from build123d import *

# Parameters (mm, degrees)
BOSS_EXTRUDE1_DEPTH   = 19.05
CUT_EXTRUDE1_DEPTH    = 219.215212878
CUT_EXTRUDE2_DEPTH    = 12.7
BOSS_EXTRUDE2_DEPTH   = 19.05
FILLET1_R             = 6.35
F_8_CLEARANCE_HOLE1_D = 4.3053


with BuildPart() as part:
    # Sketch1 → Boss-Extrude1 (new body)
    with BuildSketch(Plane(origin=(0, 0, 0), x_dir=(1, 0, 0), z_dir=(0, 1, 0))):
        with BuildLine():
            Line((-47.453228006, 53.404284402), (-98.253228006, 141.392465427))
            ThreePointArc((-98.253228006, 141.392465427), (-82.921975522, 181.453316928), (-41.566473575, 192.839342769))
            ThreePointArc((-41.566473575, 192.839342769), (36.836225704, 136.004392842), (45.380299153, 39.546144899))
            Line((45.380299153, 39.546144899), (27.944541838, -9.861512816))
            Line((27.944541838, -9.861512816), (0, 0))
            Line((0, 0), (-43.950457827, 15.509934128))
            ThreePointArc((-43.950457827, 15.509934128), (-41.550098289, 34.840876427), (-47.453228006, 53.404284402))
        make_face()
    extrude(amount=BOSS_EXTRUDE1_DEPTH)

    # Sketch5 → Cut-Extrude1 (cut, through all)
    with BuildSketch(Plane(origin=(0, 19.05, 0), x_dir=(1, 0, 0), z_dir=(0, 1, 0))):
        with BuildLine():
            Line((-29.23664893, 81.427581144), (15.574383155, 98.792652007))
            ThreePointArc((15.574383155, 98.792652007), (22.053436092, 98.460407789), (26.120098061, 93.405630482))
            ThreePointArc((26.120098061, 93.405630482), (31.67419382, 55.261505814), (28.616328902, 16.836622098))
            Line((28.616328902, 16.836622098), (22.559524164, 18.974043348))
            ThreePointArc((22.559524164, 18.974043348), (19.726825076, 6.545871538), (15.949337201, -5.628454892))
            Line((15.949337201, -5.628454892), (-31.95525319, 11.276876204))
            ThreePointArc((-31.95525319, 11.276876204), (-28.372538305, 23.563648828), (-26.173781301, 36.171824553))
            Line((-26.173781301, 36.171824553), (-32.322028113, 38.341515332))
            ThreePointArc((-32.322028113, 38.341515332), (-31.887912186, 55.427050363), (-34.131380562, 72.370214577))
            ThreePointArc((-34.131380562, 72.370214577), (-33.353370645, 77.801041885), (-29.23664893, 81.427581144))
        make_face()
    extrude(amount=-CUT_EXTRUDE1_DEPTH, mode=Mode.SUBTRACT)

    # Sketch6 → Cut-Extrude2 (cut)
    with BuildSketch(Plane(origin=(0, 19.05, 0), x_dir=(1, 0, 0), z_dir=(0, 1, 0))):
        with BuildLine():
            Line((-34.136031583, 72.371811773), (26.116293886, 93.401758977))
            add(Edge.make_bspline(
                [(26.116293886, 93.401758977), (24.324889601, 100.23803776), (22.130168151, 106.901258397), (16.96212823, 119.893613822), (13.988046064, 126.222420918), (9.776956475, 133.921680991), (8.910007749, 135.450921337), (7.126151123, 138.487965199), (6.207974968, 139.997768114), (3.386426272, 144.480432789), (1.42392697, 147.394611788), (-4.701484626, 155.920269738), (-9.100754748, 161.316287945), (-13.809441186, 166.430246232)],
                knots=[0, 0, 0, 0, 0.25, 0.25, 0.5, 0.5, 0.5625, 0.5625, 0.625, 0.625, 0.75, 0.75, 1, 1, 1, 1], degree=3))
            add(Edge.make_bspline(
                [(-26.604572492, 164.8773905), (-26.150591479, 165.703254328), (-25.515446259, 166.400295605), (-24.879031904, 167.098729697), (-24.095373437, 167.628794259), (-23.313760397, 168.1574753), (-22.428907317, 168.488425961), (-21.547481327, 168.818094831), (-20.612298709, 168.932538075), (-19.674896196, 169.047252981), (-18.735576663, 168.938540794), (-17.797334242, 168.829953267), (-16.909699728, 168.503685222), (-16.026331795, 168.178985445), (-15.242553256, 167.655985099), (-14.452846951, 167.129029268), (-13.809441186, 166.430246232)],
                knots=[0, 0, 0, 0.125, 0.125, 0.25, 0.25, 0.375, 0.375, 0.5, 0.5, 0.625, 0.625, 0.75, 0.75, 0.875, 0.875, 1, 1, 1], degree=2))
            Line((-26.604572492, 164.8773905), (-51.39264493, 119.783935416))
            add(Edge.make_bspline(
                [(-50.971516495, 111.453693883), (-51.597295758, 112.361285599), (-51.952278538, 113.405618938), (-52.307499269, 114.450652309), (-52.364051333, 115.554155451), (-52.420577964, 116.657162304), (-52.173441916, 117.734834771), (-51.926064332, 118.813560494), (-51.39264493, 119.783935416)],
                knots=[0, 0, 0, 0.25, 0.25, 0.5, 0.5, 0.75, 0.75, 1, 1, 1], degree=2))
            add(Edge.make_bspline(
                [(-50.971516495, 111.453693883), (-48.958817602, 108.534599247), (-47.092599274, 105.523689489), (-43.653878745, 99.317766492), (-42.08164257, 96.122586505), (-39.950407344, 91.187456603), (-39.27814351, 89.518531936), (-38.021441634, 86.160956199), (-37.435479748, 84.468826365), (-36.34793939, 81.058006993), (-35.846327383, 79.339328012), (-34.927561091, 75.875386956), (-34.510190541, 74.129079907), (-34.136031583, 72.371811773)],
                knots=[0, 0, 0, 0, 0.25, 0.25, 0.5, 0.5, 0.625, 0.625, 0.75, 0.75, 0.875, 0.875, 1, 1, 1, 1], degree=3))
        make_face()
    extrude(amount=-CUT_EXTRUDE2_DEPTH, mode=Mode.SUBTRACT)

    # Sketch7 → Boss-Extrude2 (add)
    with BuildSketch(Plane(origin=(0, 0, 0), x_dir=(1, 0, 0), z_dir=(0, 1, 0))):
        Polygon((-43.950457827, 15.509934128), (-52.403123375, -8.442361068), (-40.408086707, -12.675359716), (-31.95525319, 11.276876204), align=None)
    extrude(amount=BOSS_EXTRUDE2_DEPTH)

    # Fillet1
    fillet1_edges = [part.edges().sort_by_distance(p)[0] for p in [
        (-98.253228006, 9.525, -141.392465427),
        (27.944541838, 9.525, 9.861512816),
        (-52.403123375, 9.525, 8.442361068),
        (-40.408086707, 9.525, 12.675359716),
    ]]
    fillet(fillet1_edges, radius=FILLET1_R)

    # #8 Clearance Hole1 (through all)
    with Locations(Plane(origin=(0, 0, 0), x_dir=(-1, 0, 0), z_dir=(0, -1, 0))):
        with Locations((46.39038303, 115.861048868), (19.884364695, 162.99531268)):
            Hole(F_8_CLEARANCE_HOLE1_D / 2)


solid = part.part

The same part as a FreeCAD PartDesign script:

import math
import FreeCAD as App
import Part
import Sketcher
from FreeCAD import Vector
Q = App.Units.Quantity


def edges_at(feature, points):
    """Names of the edges that pass closest to the given points."""
    edges = feature.Shape.Edges
    near = lambda p: min(range(len(edges)), key=lambda i: edges[i].distToShape(Part.Vertex(*p))[0])
    return sorted({f"Edge{near(p) + 1}" for p in points})

doc = App.newDocument("Part")
body = doc.addObject("PartDesign::Body", "Body")

sketch1 = body.newObject("Sketcher::SketchObject", "Sketch")
sketch1.AttachmentSupport = (doc.getObject("XZ_Plane"), [""])
sketch1.MapMode = "FlatFace"
sketch1.addGeometry([
    Part.LineSegment(Vector(-98, -141, 0), Vector(-47, -53, 0)),
    Part.ArcOfCircle(Part.Circle(Vector(-87, -31, 0), Vector(0, 0, 1), 46), math.radians(-30), math.radians(19)),
    Part.LineSegment(Vector(-44, -16, 0), Vector(0, 0, 0)),
    Part.LineSegment(Vector(0, 0, 0), Vector(28, 10, 0)),
    Part.LineSegment(Vector(28, 10, 0), Vector(45, -40, 0)),
    Part.ArcOfCircle(Part.Circle(Vector(-65, -78, 0), Vector(0, 0, 1), 117), math.radians(-79), math.radians(19)),
    Part.ArcOfCircle(Part.Circle(Vector(-51, -146, 0), Vector(0, 0, 1), 48), math.radians(174), math.radians(281)),
], False)
sketch1.addConstraint([
    Sketcher.Constraint("Tangent", 0, 2, 1, 1),
    Sketcher.Constraint("Coincident", 1, 2, 2, 1),
    Sketcher.Constraint("Coincident", 2, 2, 3, 1),
    Sketcher.Constraint("Coincident", 3, 2, 4, 1),
    Sketcher.Constraint("Tangent", 4, 2, 5, 2),
    Sketcher.Constraint("Tangent", 5, 1, 6, 2),
    Sketcher.Constraint("Coincident", 6, 1, 0, 1),
    Sketcher.Constraint("Coincident", 2, 2, -1, 1),
    Sketcher.Constraint("Parallel", 2, 3),
    Sketcher.Constraint("Perpendicular", 3, 4),
    Sketcher.Constraint("Distance", 0, Q("4 in")),
    Sketcher.Constraint("Angle", 0, Q("60 deg")),
    Sketcher.Constraint("Radius", 1, Q("45.503319 mm")),
    Sketcher.Constraint("DistanceY", 5, 1, -1, 1, Q("7.5921001 in")),
    Sketcher.Constraint("Radius", 5, Q("116.757617 mm")),
    Sketcher.Constraint("Radius", 6, Q("47.514313 mm")),
    Sketcher.Constraint("DistanceX", -1, 1, 4, 2, Q("45.380299 mm")),
    Sketcher.Constraint("DistanceX", 1, 3, 1, 2, Q("42.909801 mm")),
    Sketcher.Constraint("DistanceX", 1, 2, 3, 2, Q("71.895 mm")),
    Sketcher.Constraint("DistanceX", 5, 3, 5, 1, Q("23.156098 mm")),
])
pad1 = body.newObject("PartDesign::Pad", "Pad")
pad1.Profile = sketch1
pad1.Length = Q("0.75 in")
pad1.Reversed = True

sketch2 = body.newObject("Sketcher::SketchObject", "Sketch001")
sketch2.AttachmentSupport = (doc.getObject("XZ_Plane"), [""])
sketch2.MapMode = "FlatFace"
sketch2.AttachmentOffset = App.Placement(Vector(0, 0, -0.75 * 25.4), App.Rotation())
sketch2.addGeometry([
    Part.LineSegment(Vector(16, -99, 0), Vector(-29, -81, 0)),
    Part.ArcOfCircle(Part.Circle(Vector(-26, -74, 0), Vector(0, 0, 1), 8), math.radians(168), math.radians(249)),
    Part.ArcOfCircle(Part.Circle(Vector(-141, -50, 0), Vector(0, 0, 1), 109), math.radians(-12.04), math.radians(5.95)),
    Part.LineSegment(Vector(-32, -38, 0), Vector(-26, -36, 0)),
    Part.ArcOfCircle(Part.Circle(Vector(-141, -50, 0), Vector(0, 0, 1), 115), math.radians(6.71), math.radians(19.44)),
    Part.LineSegment(Vector(-32, -11, 0), Vector(16, 6, 0)),
    Part.ArcOfCircle(Part.Circle(Vector(-141, -50, 0), Vector(0, 0, 1), 166), math.radians(10.64), math.radians(19.44)),
    Part.LineSegment(Vector(23, -19, 0), Vector(29, -17, 0)),
    Part.ArcOfCircle(Part.Circle(Vector(-141, -50, 0), Vector(0, 0, 1), 172), math.radians(-15), math.radians(11)),
    Part.ArcOfCircle(Part.Circle(Vector(18, -91, 0), Vector(0, 0, 1), 8), math.radians(-111), math.radians(-15)),
], False)
sketch2.addConstraint([
    Sketcher.Constraint("Coincident", 0, 2, 1, 2),
    Sketcher.Constraint("Coincident", 1, 1, 2, 1),
    Sketcher.Constraint("Coincident", 2, 2, 3, 1),
    Sketcher.Constraint("Coincident", 3, 2, 4, 1),
    Sketcher.Constraint("Coincident", 4, 2, 5, 1),
    Sketcher.Constraint("Coincident", 5, 2, 6, 2),
    Sketcher.Constraint("Coincident", 6, 1, 7, 1),
    Sketcher.Constraint("Coincident", 7, 2, 8, 2),
    Sketcher.Constraint("Coincident", 8, 1, 9, 2),
    Sketcher.Constraint("Coincident", 9, 1, 0, 1),
    Sketcher.Constraint("Coincident", 8, 3, 2, 3),
    Sketcher.Constraint("Parallel", 3, 5),
    Sketcher.Constraint("Parallel", 5, 7),
    Sketcher.Constraint("Distance", 5, Q("2 in")),
    Sketcher.Constraint("Radius", 6, Q("166.088399 mm")),
    Sketcher.Constraint("Radius", 1, Q("7.931156 mm")),
    Sketcher.Constraint("Radius", 2, Q("108.938464 mm")),
    Sketcher.Constraint("Radius", 4, Q("115.288554 mm")),
    Sketcher.Constraint("Radius", 8, Q("172.438464 mm")),
    Sketcher.Constraint("Radius", 9, Q("7.936717 mm")),
    Sketcher.Constraint("DistanceX", -1, 1, 8, 1, Q("26.120098 mm")),
    Sketcher.Constraint("DistanceY", 1, 1, 2, 3, Q("22.7274 mm")),
    Sketcher.Constraint("DistanceY", 1, 1, 2, 2, Q("34.028699 mm")),
    Sketcher.Constraint("DistanceX", 1, 1, 3, 2, Q("7.957599 mm")),
    Sketcher.Constraint("DistanceY", 1, 3, 3, 2, Q("37.858498 mm")),
    Sketcher.Constraint("DistanceY", 6, 1, 5, 2, Q("24.602498 mm")),
    Sketcher.Constraint("Distance", 0, Q("48.05803 mm")),
    Sketcher.Constraint("DistanceX", -1, 1, 9, 3, Q("18.442948 mm")),
    Sketcher.Constraint("DistanceX", 0, 2, -1, 1, Q("29.236649 mm")),
    Sketcher.Constraint("DistanceY", 0, 2, -1, 1, Q("81.427581 mm")),
    Sketcher.Constraint("DistanceX", 1, 1, -1, 1, Q("34.131381 mm")),
    Sketcher.Constraint("DistanceX", -1, 1, 7, 2, Q("28.616329 mm")),
    Sketcher.Constraint("DistanceY", 1, 3, 2, 3, Q("24.387509 mm")),
    Sketcher.Constraint("DistanceX", 4, 3, 1, 3, Q("114.29661 mm")),
    Sketcher.Constraint("DistanceX", 6, 3, 2, 3, Q("0.00022 mm")),
])
pocket1 = body.newObject("PartDesign::Pocket", "Pocket")
pocket1.Profile = sketch2
pocket1.Type = "ThroughAll"
pocket1.Reversed = True

sketch3 = body.newObject("Sketcher::SketchObject", "Sketch002")
sketch3.AttachmentSupport = (doc.getObject("XZ_Plane"), [""])
sketch3.MapMode = "FlatFace"
sketch3.AttachmentOffset = App.Placement(Vector(0, 0, -0.75 * 25.4), App.Rotation())
sketch3.addGeometry([
    Part.LineSegment(Vector(-34.136032, -72.371812, 0), Vector(26.116294, -93.401759, 0)),
    Part.BSplineCurve([Vector(26.116294, -93.401759, 0), Vector(24.32489, -100.238038, 0), Vector(22.130168, -106.901258, 0), Vector(16.962128, -119.893614, 0), Vector(13.988046, -126.222421, 0), Vector(9.776956, -133.921681, 0), Vector(8.910008, -135.450921, 0), Vector(7.126151, -138.487965, 0), Vector(6.207975, -139.997768, 0), Vector(3.386426, -144.480433, 0), Vector(1.423927, -147.394612, 0), Vector(-4.701485, -155.92027, 0), Vector(-9.100755, -161.316288, 0), Vector(-13.809441, -166.430246, 0)], [4, 2, 2, 2, 2, 2, 4], [0, 0.25, 0.5, 0.5625, 0.625, 0.75, 1], False, 3, [1, 1, 1, 1, 1, 1, 1, 1, 1, 1, 1, 1, 1, 1], False),
    Part.BSplineCurve([Vector(-26.604572, -164.87739, 0), Vector(-26.150591, -165.703254, 0), Vector(-25.515446, -166.400296, 0), Vector(-24.879032, -167.09873, 0), Vector(-24.095373, -167.628794, 0), Vector(-23.31376, -168.157475, 0), Vector(-22.428907, -168.488426, 0), Vector(-21.547481, -168.818095, 0), Vector(-20.612299, -168.932538, 0), Vector(-19.674896, -169.047253, 0), Vector(-18.735577, -168.938541, 0), Vector(-17.797334, -168.829953, 0), Vector(-16.9097, -168.503685, 0), Vector(-16.026332, -168.178985, 0), Vector(-15.242553, -167.655985, 0), Vector(-14.452847, -167.129029, 0), Vector(-13.809441, -166.430246, 0)], [3, 2, 2, 2, 2, 2, 2, 2, 3], [0, 0.125, 0.25, 0.375, 0.5, 0.625, 0.75, 0.875, 1], False, 2, [1, 1, 1, 1, 1, 1, 1, 1, 1, 1, 1, 1, 1, 1, 1, 1, 1], False),
    Part.LineSegment(Vector(-26.604572, -164.87739, 0), Vector(-51.392645, -119.783935, 0)),
    Part.BSplineCurve([Vector(-50.971516, -111.453694, 0), Vector(-51.597296, -112.361286, 0), Vector(-51.952279, -113.405619, 0), Vector(-52.307499, -114.450652, 0), Vector(-52.364051, -115.554155, 0), Vector(-52.420578, -116.657162, 0), Vector(-52.173442, -117.734835, 0), Vector(-51.926064, -118.81356, 0), Vector(-51.392645, -119.783935, 0)], [3, 2, 2, 2, 3], [0, 0.25, 0.5, 0.75, 1], False, 2, [1, 1, 1, 1, 1, 1, 1, 1, 1], False),
    Part.BSplineCurve([Vector(-50.971516, -111.453694, 0), Vector(-48.958818, -108.534599, 0), Vector(-47.092599, -105.523689, 0), Vector(-43.653879, -99.317766, 0), Vector(-42.081643, -96.122587, 0), Vector(-39.950407, -91.187457, 0), Vector(-39.278144, -89.518532, 0), Vector(-38.021442, -86.160956, 0), Vector(-37.43548, -84.468826, 0), Vector(-36.347939, -81.058007, 0), Vector(-35.846327, -79.339328, 0), Vector(-34.927561, -75.875387, 0), Vector(-34.510191, -74.12908, 0), Vector(-34.136032, -72.371812, 0)], [4, 2, 2, 2, 2, 2, 4], [0, 0.25, 0.5, 0.625, 0.75, 0.875, 1], False, 3, [1, 1, 1, 1, 1, 1, 1, 1, 1, 1, 1, 1, 1, 1], False),
], False)
sketch3.addConstraint([
    Sketcher.Constraint("Block", 1),
    Sketcher.Constraint("Block", 2),
    Sketcher.Constraint("Block", 4),
    Sketcher.Constraint("Block", 5),
    Sketcher.Constraint("Coincident", 0, 2, 1, 1),
    Sketcher.Constraint("Coincident", 2, 1, 3, 1),
    Sketcher.Constraint("Coincident", 3, 2, 4, 2),
    Sketcher.Constraint("Coincident", 5, 2, 0, 1),
])
pocket2 = body.newObject("PartDesign::Pocket", "Pocket001")
pocket2.Profile = sketch3
pocket2.Length = Q("0.5 in")
pocket2.Reversed = True

sketch4 = body.newObject("Sketcher::SketchObject", "Sketch003")
sketch4.AttachmentSupport = (doc.getObject("XZ_Plane"), [""])
sketch4.MapMode = "FlatFace"
sketch4.addGeometry([
    Part.LineSegment(Vector(-44, -16, 0), Vector(-52, 8, 0)),
    Part.LineSegment(Vector(-52, 8, 0), Vector(-40, 13, 0)),
    Part.LineSegment(Vector(-40, 13, 0), Vector(-32, -11, 0)),
    Part.LineSegment(Vector(-32, -11, 0), Vector(-44, -16, 0)),
], False)
sketch4.addConstraint([
    Sketcher.Constraint("Coincident", 0, 2, 1, 1),
    Sketcher.Constraint("Coincident", 1, 2, 2, 1),
    Sketcher.Constraint("Coincident", 2, 2, 3, 1),
    Sketcher.Constraint("Coincident", 3, 2, 0, 1),
    Sketcher.Constraint("Perpendicular", 0, 1),
    Sketcher.Constraint("Parallel", 1, 3),
    Sketcher.Constraint("Distance", 0, Q("1 in")),
    Sketcher.Constraint("DistanceY", 0, 2, 1, 2, Q("4.232999 mm")),
    Sketcher.Constraint("Distance", 1, Q("12.720031 mm")),
    Sketcher.Constraint("Distance", 3, Q("12.720209 mm")),
    Sketcher.Constraint("DistanceY", -1, 1, 0, 2, Q("8.442361 mm")),
    Sketcher.Constraint("DistanceX", 0, 2, -1, 1, Q("52.403123 mm")),
])
pad2 = body.newObject("PartDesign::Pad", "Pad001")
pad2.Profile = sketch4
pad2.Length = Q("0.75 in")
pad2.Reversed = True
doc.recompute()

fillet = body.newObject("PartDesign::Fillet", "Fillet")
fillet.Base = (pad2, edges_at(pad2, [
    (-98.253, 9.525, -141.392),
    (27.945, 9.525, 9.862),
    (-52.403, 9.525, 8.442),
    (-40.408, 9.525, 12.675),
]))
fillet.Radius = Q("0.25 in")

sketch5 = body.newObject("Sketcher::SketchObject", "Sketch004")
sketch5.AttachmentSupport = (doc.getObject("XZ_Plane"), [""])
sketch5.MapMode = "FlatFace"
sketch5.addGeometry([
    Part.Circle(Vector(-46.4, -115.9, 0), Vector(0, 0, 1), 2.2),
    Part.Circle(Vector(-19.9, -163, 0), Vector(0, 0, 1), 2.2),
], False)
sketch5.addConstraint([
    Sketcher.Constraint("Equal", 0, 1),
    Sketcher.Constraint("Diameter", 0, Q("0.1695 in")),
    Sketcher.Constraint("DistanceY", 0, 3, -1, 1, Q("115.861049 mm")),
    Sketcher.Constraint("DistanceX", 0, 3, 1, 3, Q("26.506018 mm")),
    Sketcher.Constraint("DistanceX", 0, 3, -1, 1, Q("46.390383 mm")),
    Sketcher.Constraint("DistanceY", 1, 3, -1, 1, Q("162.995313 mm")),
])
doc.recompute()
hole = body.newObject("PartDesign::Hole", "Hole")
hole.Profile = sketch5
hole.ThreadType = "None"
hole.Diameter = Q("0.1695 in")
hole.DepthType = "ThroughAll"

doc.recompute()
